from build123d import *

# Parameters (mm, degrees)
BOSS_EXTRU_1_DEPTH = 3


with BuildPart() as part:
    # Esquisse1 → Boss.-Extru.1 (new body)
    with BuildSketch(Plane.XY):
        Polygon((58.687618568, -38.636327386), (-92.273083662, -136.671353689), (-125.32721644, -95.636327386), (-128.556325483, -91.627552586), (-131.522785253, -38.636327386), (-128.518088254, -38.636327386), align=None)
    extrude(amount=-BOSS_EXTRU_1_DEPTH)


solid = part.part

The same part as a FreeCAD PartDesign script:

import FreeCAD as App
import Part
import Sketcher
from FreeCAD import Vector
Q = App.Units.Quantity

doc = App.newDocument("Part")
body = doc.addObject("PartDesign::Body", "Body")

sketch1 = doc.addObject("Sketcher::SketchObject", "Sketch")
body.addObject(sketch1)
sketch1.AttachmentSupport = (doc.XY_Plane, [""])
sketch1.MapMode = "FlatFace"
sketch1.addGeometry(Part.LineSegment(Vector(-92, -137, 0), Vector(59, -39, 0)), False)
sketch1.addGeometry(Part.LineSegment(Vector(59, -39, 0), Vector(-132, -39, 0)), False)
sketch1.addGeometry(Part.LineSegment(Vector(-132, -39, 0), Vector(-129, -92, 0)), False)
sketch1.addGeometry(Part.LineSegment(Vector(-129, -92, 0), Vector(-125, -96, 0)), False)
sketch1.addGeometry(Part.LineSegment(Vector(-125, -96, 0), Vector(-92, -137, 0)), False)
sketch1.addConstraint(Sketcher.Constraint("Coincident", 0, 2, 1, 1))
sketch1.addConstraint(Sketcher.Constraint("Coincident", 1, 2, 2, 1))
sketch1.addConstraint(Sketcher.Constraint("Coincident", 2, 2, 3, 1))
sketch1.addConstraint(Sketcher.Constraint("Coincident", 3, 2, 4, 1))
sketch1.addConstraint(Sketcher.Constraint("Coincident", 4, 2, 0, 1))
sketch1.addConstraint(Sketcher.Constraint("Horizontal", 1))
sketch1.addConstraint(Sketcher.Constraint("Parallel", 3, 4))
sketch1.addConstraint(Sketcher.Constraint("Angle", 0, Q("33 deg")))
sketch1.addConstraint(Sketcher.Constraint("Distance", 0, Q("180 mm")))
sketch1.addConstraint(Sketcher.Constraint("DistanceY", 3, 2, 1, 2, Q("57 mm")))
sketch1.addConstraint(Sketcher.Constraint("DistanceY", 4, 2, 2, 2, Q("45.043801 mm")))
sketch1.addConstraint(Sketcher.Constraint("DistanceX", 1, 2, 4, 2, Q("39.249702 mm")))
sketch1.addConstraint(Sketcher.Constraint("Distance", 2, Q("53.074192 mm")))
sketch1.addConstraint(Sketcher.Constraint("DistanceX", -1, 1, 0, 2, Q("58.687619 mm")))
sketch1.addConstraint(Sketcher.Constraint("DistanceY", 0, 2, -1, 1, Q("38.636327 mm")))
pad1 = doc.addObject("PartDesign::Pad", "Pad")
body.addObject(pad1)
pad1.Profile = sketch1
pad1.Length = 3
pad1.Reversed = True

doc.recompute()
